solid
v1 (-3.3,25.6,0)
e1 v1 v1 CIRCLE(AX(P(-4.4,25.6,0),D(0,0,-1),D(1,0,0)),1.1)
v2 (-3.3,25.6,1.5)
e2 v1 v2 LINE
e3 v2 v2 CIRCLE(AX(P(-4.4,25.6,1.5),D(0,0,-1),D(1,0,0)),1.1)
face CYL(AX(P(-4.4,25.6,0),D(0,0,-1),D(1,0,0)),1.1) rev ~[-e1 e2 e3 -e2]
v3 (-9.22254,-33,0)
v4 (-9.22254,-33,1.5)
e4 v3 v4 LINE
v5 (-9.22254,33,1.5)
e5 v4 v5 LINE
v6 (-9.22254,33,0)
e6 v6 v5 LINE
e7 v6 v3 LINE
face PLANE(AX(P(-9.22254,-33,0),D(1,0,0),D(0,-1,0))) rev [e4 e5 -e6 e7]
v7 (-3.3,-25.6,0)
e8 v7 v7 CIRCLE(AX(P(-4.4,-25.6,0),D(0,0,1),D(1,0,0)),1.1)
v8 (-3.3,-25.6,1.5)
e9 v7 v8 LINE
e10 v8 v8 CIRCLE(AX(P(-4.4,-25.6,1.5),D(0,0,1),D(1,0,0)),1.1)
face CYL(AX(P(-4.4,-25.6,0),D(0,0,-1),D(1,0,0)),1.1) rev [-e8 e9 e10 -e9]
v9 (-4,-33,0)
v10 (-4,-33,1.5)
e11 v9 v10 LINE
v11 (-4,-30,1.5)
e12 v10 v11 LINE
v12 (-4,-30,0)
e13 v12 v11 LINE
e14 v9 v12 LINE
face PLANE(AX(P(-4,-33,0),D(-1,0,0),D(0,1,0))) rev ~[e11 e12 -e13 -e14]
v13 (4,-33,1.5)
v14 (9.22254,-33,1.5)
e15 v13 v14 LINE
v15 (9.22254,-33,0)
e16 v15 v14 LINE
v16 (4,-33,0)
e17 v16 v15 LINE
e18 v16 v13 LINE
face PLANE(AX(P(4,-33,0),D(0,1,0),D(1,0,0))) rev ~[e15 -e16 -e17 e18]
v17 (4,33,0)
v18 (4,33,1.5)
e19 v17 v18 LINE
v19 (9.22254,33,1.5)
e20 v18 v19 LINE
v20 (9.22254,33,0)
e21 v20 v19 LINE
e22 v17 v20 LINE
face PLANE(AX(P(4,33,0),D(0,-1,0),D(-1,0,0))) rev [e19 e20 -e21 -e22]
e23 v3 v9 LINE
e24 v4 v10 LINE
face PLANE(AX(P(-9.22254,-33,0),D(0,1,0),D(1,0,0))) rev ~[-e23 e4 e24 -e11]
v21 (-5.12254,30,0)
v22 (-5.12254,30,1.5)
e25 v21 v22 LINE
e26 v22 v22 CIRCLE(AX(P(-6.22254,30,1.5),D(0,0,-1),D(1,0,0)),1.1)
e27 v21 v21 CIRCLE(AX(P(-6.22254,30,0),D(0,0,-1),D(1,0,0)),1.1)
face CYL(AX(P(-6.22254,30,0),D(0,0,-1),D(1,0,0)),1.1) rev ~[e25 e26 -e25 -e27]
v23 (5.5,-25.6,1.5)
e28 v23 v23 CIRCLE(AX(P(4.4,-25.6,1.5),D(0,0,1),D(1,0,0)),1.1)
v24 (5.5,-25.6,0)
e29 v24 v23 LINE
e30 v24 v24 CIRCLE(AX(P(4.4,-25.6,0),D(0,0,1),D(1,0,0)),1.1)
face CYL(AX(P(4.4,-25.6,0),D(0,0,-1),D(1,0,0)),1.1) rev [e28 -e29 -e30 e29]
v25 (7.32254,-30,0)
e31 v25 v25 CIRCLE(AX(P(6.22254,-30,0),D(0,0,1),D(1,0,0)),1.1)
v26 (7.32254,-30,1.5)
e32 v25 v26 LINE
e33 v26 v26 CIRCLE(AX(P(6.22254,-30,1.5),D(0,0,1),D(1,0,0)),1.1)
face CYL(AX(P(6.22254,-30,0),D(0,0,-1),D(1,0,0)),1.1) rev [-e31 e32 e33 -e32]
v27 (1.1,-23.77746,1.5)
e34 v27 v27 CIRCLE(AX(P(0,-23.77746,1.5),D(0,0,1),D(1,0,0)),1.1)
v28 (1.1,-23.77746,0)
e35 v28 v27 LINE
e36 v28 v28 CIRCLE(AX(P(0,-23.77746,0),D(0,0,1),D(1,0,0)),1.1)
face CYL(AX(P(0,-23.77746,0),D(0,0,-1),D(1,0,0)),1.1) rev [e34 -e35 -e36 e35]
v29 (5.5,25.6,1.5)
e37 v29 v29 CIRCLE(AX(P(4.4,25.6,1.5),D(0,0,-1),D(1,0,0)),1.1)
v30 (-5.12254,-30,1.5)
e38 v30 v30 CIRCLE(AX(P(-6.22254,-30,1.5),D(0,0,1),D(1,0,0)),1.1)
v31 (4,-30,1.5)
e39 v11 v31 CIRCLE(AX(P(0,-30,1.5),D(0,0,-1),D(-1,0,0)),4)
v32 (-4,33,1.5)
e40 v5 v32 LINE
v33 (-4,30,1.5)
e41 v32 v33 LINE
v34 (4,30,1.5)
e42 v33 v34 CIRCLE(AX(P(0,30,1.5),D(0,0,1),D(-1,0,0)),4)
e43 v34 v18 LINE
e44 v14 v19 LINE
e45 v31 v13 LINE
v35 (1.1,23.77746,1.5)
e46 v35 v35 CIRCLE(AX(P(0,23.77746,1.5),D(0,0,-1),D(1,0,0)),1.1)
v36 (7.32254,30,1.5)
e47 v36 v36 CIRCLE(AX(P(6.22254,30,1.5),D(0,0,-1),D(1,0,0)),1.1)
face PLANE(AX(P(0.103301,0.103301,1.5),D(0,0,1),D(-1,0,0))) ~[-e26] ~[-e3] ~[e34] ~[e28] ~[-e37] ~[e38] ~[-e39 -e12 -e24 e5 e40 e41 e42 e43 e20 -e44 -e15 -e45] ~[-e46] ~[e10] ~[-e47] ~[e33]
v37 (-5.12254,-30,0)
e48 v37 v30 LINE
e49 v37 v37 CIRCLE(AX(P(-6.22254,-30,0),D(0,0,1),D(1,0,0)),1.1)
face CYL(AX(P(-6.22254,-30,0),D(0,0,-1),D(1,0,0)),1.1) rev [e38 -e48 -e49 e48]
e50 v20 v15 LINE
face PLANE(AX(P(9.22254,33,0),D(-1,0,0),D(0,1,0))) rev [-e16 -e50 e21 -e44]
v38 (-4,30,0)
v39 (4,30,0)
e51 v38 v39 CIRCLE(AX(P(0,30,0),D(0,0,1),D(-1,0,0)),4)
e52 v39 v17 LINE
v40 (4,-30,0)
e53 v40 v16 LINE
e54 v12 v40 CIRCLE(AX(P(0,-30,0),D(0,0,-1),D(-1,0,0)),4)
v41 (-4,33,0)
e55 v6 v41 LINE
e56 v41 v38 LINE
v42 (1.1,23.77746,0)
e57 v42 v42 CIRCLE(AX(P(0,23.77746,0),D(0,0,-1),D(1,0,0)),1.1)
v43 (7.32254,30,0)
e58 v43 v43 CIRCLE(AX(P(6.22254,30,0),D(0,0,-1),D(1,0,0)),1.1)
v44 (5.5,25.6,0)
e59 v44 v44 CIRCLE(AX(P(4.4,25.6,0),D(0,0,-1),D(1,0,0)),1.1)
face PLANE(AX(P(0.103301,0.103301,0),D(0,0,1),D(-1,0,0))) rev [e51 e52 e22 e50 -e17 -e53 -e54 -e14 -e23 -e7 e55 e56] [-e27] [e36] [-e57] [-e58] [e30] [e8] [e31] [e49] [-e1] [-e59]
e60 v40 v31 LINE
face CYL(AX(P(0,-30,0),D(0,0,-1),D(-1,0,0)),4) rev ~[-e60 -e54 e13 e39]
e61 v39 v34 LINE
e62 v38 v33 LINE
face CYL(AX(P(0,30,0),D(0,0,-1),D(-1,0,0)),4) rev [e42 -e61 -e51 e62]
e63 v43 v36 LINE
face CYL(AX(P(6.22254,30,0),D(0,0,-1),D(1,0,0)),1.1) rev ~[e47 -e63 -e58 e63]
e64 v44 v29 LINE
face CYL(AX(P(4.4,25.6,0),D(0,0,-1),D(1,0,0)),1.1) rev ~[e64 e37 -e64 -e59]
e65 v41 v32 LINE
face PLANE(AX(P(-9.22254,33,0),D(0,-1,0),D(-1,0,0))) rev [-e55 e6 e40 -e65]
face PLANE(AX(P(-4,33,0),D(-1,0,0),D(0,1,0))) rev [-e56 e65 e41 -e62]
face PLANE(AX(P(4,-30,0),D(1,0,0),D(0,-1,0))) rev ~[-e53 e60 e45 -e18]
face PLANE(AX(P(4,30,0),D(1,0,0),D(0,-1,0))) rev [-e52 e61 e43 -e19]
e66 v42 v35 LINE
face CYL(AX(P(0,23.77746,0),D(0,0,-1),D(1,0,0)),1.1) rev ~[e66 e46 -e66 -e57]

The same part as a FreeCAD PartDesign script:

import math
import FreeCAD as App
import Part
import Sketcher

V = App.Vector

doc = App.newDocument("Part")
body = doc.addObject("PartDesign::Body", "Body")

# Sketch on XY plane
sketch1 = doc.addObject("Sketcher::SketchObject", "Sketch")
body.addObject(sketch1)
sketch1.AttachmentSupport = (doc.XY_Plane, [""])
sketch1.MapMode = "FlatFace"
sketch1.addGeometry([
    Part.LineSegment(V(9.2, 33, 0), V(-9.2, 33, 0)),  # 0
    Part.LineSegment(V(-9.2, 33, 0), V(-9.2, -33, 0)),  # 1
    Part.LineSegment(V(-9.2, -33, 0), V(-4, -33, 0)),  # 2
    Part.LineSegment(V(-4, -33, 0), V(-4, -30, 0)),  # 3
    Part.ArcOfCircle(Part.Circle(V(0, -30, 0), V(0, 0, 1), 4), math.radians(0), math.radians(180)),  # 4
    Part.LineSegment(V(4, -30, 0), V(4, -33, 0)),  # 5
    Part.LineSegment(V(4, -33, 0), V(9.2, -33, 0)),  # 6
    Part.LineSegment(V(9.2, -33, 0), V(9.2, 19.8, 0)),  # 7
    Part.LineSegment(V(9.2, 19.8, 0), V(6.2, 19.8, 0)),  # 8
    Part.ArcOfCircle(Part.Circle(V(6.2, 23.8, 0), V(0, 0, 1), 4), math.radians(90), math.radians(270)),  # 9
    Part.LineSegment(V(6.2, 27.8, 0), V(9.2, 27.8, 0)),  # 10
    Part.LineSegment(V(9.2, 27.8, 0), V(9.2, 33, 0)),  # 11
    Part.Circle(V(-6.2, -30, 0), V(0, 0, 1), 1.1),  # 12
    Part.Circle(V(-4.4, -25.6, 0), V(0, 0, 1), 1.1),  # 13
    Part.Circle(V(0, -23.8, 0), V(0, 0, 1), 1.1),  # 14
    Part.Circle(V(4.4, -25.6, 0), V(0, 0, 1), 1.1),  # 15
    Part.Circle(V(6.2, -30, 0), V(0, 0, 1), 1.1),  # 16
    Part.Circle(V(1.8, 19.4, 0), V(0, 0, 1), 1.1),  # 17
    Part.Circle(V(0, 23.8, 0), V(0, 0, 1), 1.1),  # 18
    Part.Circle(V(1.8, 28.2, 0), V(0, 0, 1), 1.1),  # 19
    Part.Circle(V(6.2, 17.6, 0), V(0, 0, 1), 1.1),  # 20
    Part.Circle(V(6.2, 30, 0), V(0, 0, 1), 1.1),  # 21
], False)
sketch1.addConstraint([
    Sketcher.Constraint("Coincident", 0, 2, 1, 1),
    Sketcher.Constraint("Coincident", 1, 2, 2, 1),
    Sketcher.Constraint("Coincident", 2, 2, 3, 1),
    Sketcher.Constraint("Tangent", 3, 2, 4, 2),
    Sketcher.Constraint("Tangent", 4, 1, 5, 1),
    Sketcher.Constraint("Coincident", 5, 2, 6, 1),
    Sketcher.Constraint("Coincident", 6, 2, 7, 1),
    Sketcher.Constraint("Coincident", 7, 2, 8, 1),
    Sketcher.Constraint("Tangent", 8, 2, 9, 2),
    Sketcher.Constraint("Tangent", 9, 1, 10, 1),
    Sketcher.Constraint("Coincident", 10, 2, 11, 1),
    Sketcher.Constraint("Coincident", 11, 2, 0, 1),
    Sketcher.Constraint("Horizontal", 0),
    Sketcher.Constraint("Vertical", 1),
    Sketcher.Constraint("Horizontal", 2),
    Sketcher.Constraint("Vertical", 3),
    Sketcher.Constraint("Vertical", 5),
    Sketcher.Constraint("Horizontal", 6),
    Sketcher.Constraint("Vertical", 7),
    Sketcher.Constraint("Horizontal", 8),
    Sketcher.Constraint("Horizontal", 10),
    Sketcher.Constraint("Vertical", 11),
    Sketcher.Constraint("Equal", 4, 9),
    Sketcher.Constraint("Equal", 12, 13),
    Sketcher.Constraint("Equal", 13, 14),
    Sketcher.Constraint("Equal", 14, 15),
    Sketcher.Constraint("Equal", 15, 16),
    Sketcher.Constraint("Equal", 16, 17),
    Sketcher.Constraint("Equal", 17, 18),
    Sketcher.Constraint("Equal", 18, 19),
    Sketcher.Constraint("Equal", 19, 20),
    Sketcher.Constraint("Equal", 20, 21),
    Sketcher.Constraint("Symmetric", 14, 3, 18, 3, -1, 1),
    Sketcher.Constraint("Symmetric", 12, 3, 21, 3, -1, 1),
    Sketcher.Constraint("Symmetric", 0, 2, 6, 2, -1, 1),
    Sketcher.Constraint("Symmetric", 1, 2, 11, 2, -1, 1),
    Sketcher.Constraint("Symmetric", 13, 3, 15, 3, -2),
    Sketcher.Constraint("Symmetric", 12, 3, 16, 3, -2),
    Sketcher.Constraint("PointOnObject", 4, 3, -2),
    Sketcher.Constraint("PointOnObject", 14, 3, -2),
    Sketcher.Constraint("Horizontal", 4, 3, 12, 3),
    Sketcher.Constraint("Horizontal", 9, 3, 18, 3),
    Sketcher.Constraint("Vertical", 9, 3, 16, 3),
    Sketcher.Constraint("Vertical", 17, 3, 19, 3),
    Sketcher.Constraint("Vertical", 16, 3, 20, 3),
    Sketcher.Constraint("Equal", 10, 3),
    Sketcher.Constraint("Equal", 6, 11),
    Sketcher.Constraint("Radius", 4, 4.0),
    Sketcher.Constraint("Diameter", 12, 2.2),
    Sketcher.Constraint("DistanceX", 8, 2, 8, 1, 3.0),
    Sketcher.Constraint("DistanceY", 1, 2, 1, 1, 66.0),
    Sketcher.Constraint("DistanceX", 13, 3, -1, 1, 4.4),
    Sketcher.Constraint("DistanceY", 13, 3, -1, 1, 25.6),
    Sketcher.Constraint("DistanceX", 17, 3, 9, 3, 4.4),
    Sketcher.Constraint("DistanceY", 17, 3, 9, 3, 4.4),
    Sketcher.Constraint("DistanceY", 18, 3, 19, 3, 4.4),
    Sketcher.Constraint("DistanceX", 0, 2, 0, 1, 18.44508),
    Sketcher.Constraint("DistanceY", -1, 1, 20, 3, 17.554921),
])
pad1 = doc.addObject("PartDesign::Pad", "Pad")
body.addObject(pad1)
pad1.Profile = sketch1
pad1.Length = 1.5

# Sketch on XY plane
sketch2 = doc.addObject("Sketcher::SketchObject", "Sketch001")
body.addObject(sketch2)
sketch2.AttachmentSupport = (doc.XY_Plane, [""])
sketch2.MapMode = "FlatFace"
sketch2.AttachmentOffset = App.Placement(V(0, 0, 1.5), App.Rotation())
sketch2.addGeometry([
    Part.LineSegment(V(-9.2, 0, 0), V(9.2, 0, 0)),  # 0
    Part.LineSegment(V(9.2, 0, 0), V(9.2, 19.8, 0)),  # 1
    Part.LineSegment(V(9.2, 19.8, 0), V(6.2, 19.8, 0)),  # 2
    Part.ArcOfCircle(Part.Circle(V(6.2, 23.8, 0), V(0, 0, 1), 4), math.radians(90), math.radians(270)),  # 3
    Part.LineSegment(V(6.2, 27.8, 0), V(9.2, 27.8, 0)),  # 4
    Part.LineSegment(V(9.2, 27.8, 0), V(9.2, 33, 0)),  # 5
    Part.LineSegment(V(9.2, 33, 0), V(-9.2, 33, 0)),  # 6
    Part.LineSegment(V(-9.2, 33, 0), V(-9.2, 0, 0)),  # 7
    Part.Circle(V(1.8, 19.4, 0), V(0, 0, 1), 1.1),  # 8
    Part.Circle(V(0, 23.8, 0), V(0, 0, 1), 1.1),  # 9
    Part.Circle(V(6.2, 17.6, 0), V(0, 0, 1), 1.1),  # 10
    Part.Circle(V(1.8, 28.2, 0), V(0, 0, 1), 1.1),  # 11
    Part.Circle(V(6.2, 30, 0), V(0, 0, 1), 1.1),  # 12
], False)
sketch2.addConstraint([
    Sketcher.Constraint("Coincident", 0, 2, 1, 1),
    Sketcher.Constraint("Coincident", 1, 2, 2, 1),
    Sketcher.Constraint("Tangent", 2, 2, 3, 2),
    Sketcher.Constraint("Tangent", 3, 1, 4, 1),
    Sketcher.Constraint("Coincident", 4, 2, 5, 1),
    Sketcher.Constraint("Coincident", 5, 2, 6, 1),
    Sketcher.Constraint("Coincident", 6, 2, 7, 1),
    Sketcher.Constraint("Coincident", 7, 2, 0, 1),
    Sketcher.Constraint("Horizontal", 0),
    Sketcher.Constraint("Vertical", 1),
    Sketcher.Constraint("Horizontal", 2),
    Sketcher.Constraint("Horizontal", 4),
    Sketcher.Constraint("Vertical", 5),
    Sketcher.Constraint("Horizontal", 6),
    Sketcher.Constraint("Vertical", 7),
    Sketcher.Constraint("Equal", 8, 9),
    Sketcher.Constraint("Equal", 9, 10),
    Sketcher.Constraint("Equal", 10, 11),
    Sketcher.Constraint("Equal", 11, 12),
    Sketcher.Constraint("Symmetric", 0, 2, 7, 2, -1, 1),
    Sketcher.Constraint("PointOnObject", 9, 3, -2),
    Sketcher.Constraint("Horizontal", 3, 3, 9, 3),
    Sketcher.Constraint("Vertical", 3, 3, 10, 3),
    Sketcher.Constraint("Vertical", 8, 3, 11, 3),
    Sketcher.Constraint("Vertical", 10, 3, 12, 3),
    Sketcher.Constraint("Vertical", 1, 2, 4, 2),
    Sketcher.Constraint("Radius", 3, 4.0),
    Sketcher.Constraint("Diameter", 8, 2.2),
    Sketcher.Constraint("DistanceX", 2, 2, 2, 1, 3.0),
    Sketcher.Constraint("DistanceY", 7, 2, 7, 1, 33.0),
    Sketcher.Constraint("DistanceY", -1, 1, 12, 3, 30.0),
    Sketcher.Constraint("DistanceX", 8, 3, 3, 3, 4.4),
    Sketcher.Constraint("DistanceY", 8, 3, 3, 3, 4.4),
    Sketcher.Constraint("DistanceY", 9, 3, 11, 3, 4.4),
    Sketcher.Constraint("DistanceX", 0, 1, 0, 2, 18.44508),
    Sketcher.Constraint("DistanceY", 1, 1, 1, 2, 19.77746),
    Sketcher.Constraint("DistanceY", -1, 1, 10, 3, 17.554921),
])
pocket1 = doc.addObject("PartDesign::Pocket", "Pocket")
body.addObject(pocket1)
pocket1.Profile = sketch2
pocket1.Type = "ThroughAll"
body2 = doc.addObject("PartDesign::Body", "Body001")
doc.recompute()

body2.BaseFeature = body
doc.recompute()

mirroring = doc.addObject("Part::Mirroring", "Mirroring")
mirroring.Source = body
mirroring.Base = V(0, 0, 0)
mirroring.Normal = V(0, -1, 0)
body3 = doc.addObject("PartDesign::Body", "Body002")
body3.BaseFeature = mirroring
boolean = doc.addObject("PartDesign::Boolean", "Boolean")
body2.addObject(boolean)
boolean.Type = "Fuse"
boolean.addObjects([body3])
doc.recompute()
mirroring.Visibility = False

doc.recompute()
